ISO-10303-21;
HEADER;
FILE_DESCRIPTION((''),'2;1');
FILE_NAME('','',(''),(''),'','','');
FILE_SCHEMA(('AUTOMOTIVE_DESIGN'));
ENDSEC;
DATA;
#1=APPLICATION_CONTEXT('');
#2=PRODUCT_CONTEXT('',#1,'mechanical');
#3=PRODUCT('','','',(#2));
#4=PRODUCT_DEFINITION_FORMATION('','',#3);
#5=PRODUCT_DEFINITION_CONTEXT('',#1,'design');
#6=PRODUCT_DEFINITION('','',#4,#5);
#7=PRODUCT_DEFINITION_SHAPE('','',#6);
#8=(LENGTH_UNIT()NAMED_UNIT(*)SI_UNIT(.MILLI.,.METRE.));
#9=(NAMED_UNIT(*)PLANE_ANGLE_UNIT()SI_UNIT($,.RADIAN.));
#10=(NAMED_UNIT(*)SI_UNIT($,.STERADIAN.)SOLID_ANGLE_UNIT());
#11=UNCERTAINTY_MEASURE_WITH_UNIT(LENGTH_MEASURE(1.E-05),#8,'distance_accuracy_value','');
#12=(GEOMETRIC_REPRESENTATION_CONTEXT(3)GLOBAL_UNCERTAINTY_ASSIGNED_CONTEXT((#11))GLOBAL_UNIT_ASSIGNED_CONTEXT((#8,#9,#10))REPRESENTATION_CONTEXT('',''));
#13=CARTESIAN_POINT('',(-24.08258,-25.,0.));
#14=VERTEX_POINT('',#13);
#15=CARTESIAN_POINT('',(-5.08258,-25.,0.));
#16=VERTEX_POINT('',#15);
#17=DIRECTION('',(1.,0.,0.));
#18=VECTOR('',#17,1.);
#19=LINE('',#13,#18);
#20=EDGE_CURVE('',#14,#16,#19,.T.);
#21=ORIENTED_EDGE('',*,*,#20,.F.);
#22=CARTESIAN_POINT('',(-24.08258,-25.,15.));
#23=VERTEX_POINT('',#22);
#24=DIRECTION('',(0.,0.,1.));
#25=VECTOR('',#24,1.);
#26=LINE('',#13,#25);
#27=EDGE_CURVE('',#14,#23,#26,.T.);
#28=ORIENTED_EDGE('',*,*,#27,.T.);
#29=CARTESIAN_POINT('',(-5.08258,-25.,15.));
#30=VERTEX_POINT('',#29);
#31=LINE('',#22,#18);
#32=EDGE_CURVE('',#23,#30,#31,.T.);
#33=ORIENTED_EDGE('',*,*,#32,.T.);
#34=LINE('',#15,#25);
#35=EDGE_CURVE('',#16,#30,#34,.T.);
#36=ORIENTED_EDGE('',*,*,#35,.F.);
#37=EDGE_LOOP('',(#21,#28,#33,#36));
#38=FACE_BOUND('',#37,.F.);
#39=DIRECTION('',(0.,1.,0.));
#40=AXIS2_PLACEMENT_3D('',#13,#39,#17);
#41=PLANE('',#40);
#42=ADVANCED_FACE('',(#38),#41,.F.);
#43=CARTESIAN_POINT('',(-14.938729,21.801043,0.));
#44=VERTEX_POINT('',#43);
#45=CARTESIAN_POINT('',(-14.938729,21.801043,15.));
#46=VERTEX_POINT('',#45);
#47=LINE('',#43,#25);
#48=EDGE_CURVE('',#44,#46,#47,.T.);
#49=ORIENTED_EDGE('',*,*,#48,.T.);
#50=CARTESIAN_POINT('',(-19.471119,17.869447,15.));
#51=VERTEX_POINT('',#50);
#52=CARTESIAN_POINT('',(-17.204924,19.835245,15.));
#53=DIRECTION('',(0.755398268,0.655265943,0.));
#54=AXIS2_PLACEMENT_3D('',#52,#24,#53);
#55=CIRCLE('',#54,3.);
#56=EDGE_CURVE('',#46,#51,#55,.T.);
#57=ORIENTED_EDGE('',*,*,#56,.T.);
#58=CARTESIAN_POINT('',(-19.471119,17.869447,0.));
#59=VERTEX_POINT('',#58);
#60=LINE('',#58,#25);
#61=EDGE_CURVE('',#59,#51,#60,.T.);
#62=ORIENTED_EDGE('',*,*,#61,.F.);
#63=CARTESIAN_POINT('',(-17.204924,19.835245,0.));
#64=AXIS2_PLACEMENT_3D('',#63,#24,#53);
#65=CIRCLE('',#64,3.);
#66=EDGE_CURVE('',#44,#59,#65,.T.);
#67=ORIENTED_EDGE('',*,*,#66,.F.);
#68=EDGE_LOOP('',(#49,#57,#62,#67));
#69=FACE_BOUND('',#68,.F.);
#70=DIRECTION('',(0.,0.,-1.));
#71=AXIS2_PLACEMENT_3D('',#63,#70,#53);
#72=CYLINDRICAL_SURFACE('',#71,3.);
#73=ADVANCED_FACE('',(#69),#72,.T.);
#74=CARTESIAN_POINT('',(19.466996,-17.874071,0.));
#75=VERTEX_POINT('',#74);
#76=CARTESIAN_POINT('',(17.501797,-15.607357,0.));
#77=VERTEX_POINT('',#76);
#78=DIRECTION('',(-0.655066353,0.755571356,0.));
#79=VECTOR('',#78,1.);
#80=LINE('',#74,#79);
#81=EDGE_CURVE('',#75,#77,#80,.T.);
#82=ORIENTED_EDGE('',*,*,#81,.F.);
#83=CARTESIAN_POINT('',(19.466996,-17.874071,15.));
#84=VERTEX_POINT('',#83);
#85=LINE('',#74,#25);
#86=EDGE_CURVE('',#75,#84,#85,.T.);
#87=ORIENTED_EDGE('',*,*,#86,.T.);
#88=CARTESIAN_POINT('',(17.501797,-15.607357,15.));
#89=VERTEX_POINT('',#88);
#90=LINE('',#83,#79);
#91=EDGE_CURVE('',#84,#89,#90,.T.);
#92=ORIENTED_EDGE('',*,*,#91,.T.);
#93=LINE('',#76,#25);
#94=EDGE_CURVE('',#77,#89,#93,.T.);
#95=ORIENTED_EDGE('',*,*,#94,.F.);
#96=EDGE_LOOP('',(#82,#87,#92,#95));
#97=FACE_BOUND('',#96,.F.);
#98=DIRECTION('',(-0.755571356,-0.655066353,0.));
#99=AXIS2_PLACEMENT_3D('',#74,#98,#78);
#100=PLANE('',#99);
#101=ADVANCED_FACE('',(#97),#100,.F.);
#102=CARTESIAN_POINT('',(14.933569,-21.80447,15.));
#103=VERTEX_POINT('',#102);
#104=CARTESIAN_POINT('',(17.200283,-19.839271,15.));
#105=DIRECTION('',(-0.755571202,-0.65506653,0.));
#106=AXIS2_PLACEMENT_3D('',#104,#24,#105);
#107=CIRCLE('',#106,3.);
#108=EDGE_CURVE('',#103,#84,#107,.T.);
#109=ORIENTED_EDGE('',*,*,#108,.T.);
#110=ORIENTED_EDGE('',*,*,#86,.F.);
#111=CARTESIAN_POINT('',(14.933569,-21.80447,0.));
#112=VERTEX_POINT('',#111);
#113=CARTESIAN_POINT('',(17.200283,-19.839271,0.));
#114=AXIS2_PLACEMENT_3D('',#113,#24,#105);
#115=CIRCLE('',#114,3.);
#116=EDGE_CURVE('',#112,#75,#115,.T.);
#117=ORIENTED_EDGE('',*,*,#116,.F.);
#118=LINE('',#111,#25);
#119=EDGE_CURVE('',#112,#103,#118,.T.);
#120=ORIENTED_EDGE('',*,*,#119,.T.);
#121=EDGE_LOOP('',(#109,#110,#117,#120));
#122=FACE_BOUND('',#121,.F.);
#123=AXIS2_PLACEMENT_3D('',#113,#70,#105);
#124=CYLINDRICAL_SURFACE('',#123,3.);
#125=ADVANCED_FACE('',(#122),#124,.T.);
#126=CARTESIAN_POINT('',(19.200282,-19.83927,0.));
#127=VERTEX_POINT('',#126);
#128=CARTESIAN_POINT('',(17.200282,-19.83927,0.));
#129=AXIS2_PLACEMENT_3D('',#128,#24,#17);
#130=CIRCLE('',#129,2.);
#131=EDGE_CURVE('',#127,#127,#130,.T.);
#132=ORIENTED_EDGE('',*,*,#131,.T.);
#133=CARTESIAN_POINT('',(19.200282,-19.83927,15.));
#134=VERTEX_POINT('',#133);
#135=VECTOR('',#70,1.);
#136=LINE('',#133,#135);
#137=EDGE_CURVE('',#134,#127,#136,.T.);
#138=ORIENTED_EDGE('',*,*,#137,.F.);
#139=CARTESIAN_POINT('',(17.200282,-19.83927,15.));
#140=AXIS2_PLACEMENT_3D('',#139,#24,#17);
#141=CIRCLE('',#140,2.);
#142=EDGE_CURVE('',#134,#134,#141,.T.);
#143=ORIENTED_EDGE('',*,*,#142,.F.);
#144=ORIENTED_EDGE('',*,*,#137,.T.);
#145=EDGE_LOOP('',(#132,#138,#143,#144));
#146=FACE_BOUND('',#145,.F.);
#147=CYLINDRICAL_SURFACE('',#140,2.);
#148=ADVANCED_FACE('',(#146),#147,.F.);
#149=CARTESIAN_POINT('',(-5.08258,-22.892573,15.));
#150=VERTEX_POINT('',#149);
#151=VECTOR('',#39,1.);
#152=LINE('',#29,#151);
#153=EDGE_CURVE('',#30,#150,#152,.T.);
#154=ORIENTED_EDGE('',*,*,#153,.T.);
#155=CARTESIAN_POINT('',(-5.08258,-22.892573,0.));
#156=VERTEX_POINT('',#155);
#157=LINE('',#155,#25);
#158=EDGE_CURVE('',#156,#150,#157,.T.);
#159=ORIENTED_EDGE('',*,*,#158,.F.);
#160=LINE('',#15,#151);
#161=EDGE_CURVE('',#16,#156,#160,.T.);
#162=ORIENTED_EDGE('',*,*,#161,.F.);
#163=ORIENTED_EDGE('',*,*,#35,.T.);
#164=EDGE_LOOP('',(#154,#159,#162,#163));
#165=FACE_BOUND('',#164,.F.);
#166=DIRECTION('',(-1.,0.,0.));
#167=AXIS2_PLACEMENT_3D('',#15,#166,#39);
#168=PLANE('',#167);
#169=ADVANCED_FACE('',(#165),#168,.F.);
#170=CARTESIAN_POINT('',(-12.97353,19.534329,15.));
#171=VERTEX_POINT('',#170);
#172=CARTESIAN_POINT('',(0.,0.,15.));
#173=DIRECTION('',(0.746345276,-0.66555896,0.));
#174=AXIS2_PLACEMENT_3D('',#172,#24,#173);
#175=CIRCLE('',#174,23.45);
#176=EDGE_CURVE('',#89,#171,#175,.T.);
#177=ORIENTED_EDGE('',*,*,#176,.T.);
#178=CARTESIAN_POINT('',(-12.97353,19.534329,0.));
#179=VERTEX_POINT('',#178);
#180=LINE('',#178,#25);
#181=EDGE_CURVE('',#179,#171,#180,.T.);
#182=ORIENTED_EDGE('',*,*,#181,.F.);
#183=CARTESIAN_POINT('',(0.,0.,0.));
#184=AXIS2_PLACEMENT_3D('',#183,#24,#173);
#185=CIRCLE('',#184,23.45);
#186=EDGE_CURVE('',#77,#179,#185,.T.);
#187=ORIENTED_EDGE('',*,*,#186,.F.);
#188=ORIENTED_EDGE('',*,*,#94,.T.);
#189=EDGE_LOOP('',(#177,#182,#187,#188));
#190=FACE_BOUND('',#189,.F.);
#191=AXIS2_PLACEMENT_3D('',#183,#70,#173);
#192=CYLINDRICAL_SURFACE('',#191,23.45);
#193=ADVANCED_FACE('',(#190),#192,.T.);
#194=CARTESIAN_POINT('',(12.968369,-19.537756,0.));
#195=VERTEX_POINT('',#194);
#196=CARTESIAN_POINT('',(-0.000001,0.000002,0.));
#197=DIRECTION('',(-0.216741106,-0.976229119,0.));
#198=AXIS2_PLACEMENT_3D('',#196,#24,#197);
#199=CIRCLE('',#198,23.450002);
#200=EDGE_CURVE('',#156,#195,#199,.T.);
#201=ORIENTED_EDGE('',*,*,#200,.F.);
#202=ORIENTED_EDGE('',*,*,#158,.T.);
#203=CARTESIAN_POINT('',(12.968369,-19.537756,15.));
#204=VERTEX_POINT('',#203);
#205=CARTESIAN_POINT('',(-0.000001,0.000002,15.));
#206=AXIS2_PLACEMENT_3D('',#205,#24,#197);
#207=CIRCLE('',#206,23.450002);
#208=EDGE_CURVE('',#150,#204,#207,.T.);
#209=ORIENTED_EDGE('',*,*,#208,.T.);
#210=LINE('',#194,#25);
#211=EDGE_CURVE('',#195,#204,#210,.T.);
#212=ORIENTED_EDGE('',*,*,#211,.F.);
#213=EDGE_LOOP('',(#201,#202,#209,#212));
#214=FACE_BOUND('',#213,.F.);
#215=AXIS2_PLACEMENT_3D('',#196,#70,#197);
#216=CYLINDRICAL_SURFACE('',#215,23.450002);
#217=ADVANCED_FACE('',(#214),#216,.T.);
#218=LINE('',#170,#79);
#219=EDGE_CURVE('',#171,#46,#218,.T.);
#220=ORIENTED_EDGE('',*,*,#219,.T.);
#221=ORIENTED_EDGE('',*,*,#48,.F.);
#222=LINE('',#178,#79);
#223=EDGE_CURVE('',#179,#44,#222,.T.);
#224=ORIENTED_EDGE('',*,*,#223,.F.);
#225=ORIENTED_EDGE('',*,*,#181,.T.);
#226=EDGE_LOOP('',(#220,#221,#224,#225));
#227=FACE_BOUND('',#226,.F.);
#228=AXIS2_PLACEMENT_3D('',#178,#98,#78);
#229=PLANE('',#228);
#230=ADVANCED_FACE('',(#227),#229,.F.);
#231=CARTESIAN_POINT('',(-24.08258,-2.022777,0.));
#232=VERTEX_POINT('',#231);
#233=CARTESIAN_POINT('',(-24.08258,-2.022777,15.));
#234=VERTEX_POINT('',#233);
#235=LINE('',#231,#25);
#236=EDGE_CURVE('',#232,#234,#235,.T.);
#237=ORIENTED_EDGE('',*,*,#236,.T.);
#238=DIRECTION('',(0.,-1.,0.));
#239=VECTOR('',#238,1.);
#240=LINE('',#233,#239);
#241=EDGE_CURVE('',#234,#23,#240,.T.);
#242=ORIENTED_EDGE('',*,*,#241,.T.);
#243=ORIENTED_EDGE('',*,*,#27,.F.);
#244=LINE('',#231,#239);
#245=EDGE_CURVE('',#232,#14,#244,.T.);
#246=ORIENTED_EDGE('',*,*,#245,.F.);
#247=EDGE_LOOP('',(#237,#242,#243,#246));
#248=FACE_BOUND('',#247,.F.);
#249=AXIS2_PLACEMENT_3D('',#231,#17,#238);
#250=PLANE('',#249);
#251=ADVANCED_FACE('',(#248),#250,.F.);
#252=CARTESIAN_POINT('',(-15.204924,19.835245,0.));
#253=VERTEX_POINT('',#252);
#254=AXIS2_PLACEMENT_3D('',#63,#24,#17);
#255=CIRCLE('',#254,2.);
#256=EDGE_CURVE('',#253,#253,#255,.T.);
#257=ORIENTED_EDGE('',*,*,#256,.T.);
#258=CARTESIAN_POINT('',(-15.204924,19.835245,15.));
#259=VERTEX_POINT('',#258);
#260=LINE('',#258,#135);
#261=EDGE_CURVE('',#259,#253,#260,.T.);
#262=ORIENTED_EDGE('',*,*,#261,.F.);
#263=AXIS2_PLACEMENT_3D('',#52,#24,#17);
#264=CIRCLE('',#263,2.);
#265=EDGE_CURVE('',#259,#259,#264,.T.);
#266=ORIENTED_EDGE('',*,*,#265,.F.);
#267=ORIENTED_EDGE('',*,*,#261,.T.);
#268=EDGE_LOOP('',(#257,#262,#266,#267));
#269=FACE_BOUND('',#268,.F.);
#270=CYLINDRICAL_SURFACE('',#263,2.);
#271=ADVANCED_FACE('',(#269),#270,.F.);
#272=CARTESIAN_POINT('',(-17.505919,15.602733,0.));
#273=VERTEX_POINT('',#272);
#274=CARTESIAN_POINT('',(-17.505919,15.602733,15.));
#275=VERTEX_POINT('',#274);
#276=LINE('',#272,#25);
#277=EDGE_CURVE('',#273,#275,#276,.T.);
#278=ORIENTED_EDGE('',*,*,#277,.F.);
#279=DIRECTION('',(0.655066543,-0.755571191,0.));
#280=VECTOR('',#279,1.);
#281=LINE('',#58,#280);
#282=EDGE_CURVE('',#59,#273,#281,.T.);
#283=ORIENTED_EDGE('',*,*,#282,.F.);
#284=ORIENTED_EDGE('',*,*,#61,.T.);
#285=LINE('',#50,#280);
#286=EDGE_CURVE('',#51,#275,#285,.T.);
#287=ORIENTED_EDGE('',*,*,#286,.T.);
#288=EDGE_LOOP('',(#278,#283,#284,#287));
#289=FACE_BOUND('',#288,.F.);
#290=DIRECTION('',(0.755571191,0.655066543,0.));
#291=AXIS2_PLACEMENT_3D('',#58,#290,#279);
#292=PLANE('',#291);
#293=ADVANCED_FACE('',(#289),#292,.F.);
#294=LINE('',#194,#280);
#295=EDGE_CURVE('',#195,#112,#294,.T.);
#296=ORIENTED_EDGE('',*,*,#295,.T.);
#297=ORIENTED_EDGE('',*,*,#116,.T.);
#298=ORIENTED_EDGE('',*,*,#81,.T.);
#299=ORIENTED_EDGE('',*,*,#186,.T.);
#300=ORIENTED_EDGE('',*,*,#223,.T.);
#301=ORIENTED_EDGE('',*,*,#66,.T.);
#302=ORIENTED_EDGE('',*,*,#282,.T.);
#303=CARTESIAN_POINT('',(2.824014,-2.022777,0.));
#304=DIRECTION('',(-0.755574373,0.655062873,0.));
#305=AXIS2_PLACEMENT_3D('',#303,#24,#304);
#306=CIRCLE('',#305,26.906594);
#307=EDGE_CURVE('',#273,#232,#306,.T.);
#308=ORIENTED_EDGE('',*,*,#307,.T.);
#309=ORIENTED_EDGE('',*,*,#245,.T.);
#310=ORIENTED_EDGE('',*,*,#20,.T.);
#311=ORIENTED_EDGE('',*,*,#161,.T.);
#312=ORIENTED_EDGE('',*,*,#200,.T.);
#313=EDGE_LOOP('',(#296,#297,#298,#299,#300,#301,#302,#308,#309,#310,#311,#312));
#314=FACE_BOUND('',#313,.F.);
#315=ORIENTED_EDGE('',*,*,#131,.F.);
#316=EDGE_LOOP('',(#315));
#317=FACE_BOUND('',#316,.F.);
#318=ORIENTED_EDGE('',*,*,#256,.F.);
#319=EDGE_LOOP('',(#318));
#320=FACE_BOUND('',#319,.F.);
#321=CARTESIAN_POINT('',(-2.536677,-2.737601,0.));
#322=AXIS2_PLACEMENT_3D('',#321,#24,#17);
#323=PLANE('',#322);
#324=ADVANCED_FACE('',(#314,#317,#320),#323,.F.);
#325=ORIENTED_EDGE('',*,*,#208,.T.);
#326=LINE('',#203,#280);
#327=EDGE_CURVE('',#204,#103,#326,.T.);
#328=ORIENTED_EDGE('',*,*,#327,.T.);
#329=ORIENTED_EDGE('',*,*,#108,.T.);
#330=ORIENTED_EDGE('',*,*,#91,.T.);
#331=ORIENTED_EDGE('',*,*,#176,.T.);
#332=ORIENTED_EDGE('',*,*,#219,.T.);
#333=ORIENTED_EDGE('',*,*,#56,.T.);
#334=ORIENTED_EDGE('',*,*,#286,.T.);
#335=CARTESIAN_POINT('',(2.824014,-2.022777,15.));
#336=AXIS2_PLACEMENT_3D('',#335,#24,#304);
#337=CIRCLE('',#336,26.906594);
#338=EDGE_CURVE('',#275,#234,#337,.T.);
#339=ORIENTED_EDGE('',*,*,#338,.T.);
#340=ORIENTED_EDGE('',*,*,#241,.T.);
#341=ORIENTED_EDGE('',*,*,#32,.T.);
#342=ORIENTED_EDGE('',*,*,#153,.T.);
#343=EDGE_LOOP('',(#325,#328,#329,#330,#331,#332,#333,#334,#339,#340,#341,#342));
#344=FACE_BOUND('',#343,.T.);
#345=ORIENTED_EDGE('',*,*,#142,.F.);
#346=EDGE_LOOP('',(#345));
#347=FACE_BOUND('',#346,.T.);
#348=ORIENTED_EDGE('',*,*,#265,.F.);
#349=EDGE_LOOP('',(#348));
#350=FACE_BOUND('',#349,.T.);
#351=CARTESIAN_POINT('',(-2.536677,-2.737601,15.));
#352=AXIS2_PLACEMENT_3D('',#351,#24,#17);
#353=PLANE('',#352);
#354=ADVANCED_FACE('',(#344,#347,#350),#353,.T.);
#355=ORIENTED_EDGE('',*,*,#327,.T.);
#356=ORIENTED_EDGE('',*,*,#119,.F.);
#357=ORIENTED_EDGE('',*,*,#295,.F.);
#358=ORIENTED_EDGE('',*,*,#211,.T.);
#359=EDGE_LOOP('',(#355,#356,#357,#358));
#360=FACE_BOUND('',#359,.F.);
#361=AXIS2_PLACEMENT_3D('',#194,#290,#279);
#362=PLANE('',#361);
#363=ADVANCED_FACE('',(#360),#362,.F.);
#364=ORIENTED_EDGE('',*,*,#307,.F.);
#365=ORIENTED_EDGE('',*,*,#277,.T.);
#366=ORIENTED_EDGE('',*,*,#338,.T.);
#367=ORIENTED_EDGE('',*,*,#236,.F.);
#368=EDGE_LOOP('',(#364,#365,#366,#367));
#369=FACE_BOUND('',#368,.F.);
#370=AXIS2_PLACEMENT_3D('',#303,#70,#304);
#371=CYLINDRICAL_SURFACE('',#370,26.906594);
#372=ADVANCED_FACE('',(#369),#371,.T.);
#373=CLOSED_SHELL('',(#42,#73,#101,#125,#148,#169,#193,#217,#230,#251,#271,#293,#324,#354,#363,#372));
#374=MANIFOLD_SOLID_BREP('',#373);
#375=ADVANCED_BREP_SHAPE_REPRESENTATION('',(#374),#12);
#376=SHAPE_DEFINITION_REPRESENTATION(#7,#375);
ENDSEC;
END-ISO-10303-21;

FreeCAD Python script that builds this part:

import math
import FreeCAD as App
import Part
import Sketcher
from FreeCAD import Vector

doc = App.newDocument("Part")
body = doc.addObject("PartDesign::Body", "Body")

# Sketch on XY plane
sketch1 = body.newObject("Sketcher::SketchObject", "Sketch")
sketch1.AttachmentSupport = (doc.getObject("XY_Plane"), [""])
sketch1.MapMode = "FlatFace"
sketch1.addGeometry([
    Part.ArcOfCircle(Part.Circle(Vector(2.824014, -2.022777, 0), Vector(0, 0, 1), 26.906594), math.radians(139.075583), math.radians(179.999999)),  # 0
    Part.LineSegment(Vector(-24.08258, -2.022777, 0), Vector(-24.08258, -25, 0)),  # 1
    Part.LineSegment(Vector(-24.08258, -25, 0), Vector(-5.08258, -25, 0)),  # 2
    Part.LineSegment(Vector(-5.08258, -25, 0), Vector(-5.08258, -22.892573, 0)),  # 3
    Part.ArcOfCircle(Part.Circle(Vector(-0.000001, 0.000002, 0), Vector(0, 0, 1), 23.450002), math.radians(-102.517694), math.radians(-56.425409)),  # 4
    Part.LineSegment(Vector(12.968369, -19.537756, 0), Vector(14.933569, -21.80447, 0)),  # 5
    Part.ArcOfCircle(Part.Circle(Vector(17.200283, -19.839271, 0), Vector(0, 0, 1), 3), math.radians(-139.075305), math.radians(40.924695)),  # 6
    Part.LineSegment(Vector(19.466996, -17.874071, 0), Vector(17.501797, -15.607357, 0)),  # 7
    Part.ArcOfCircle(Part.Circle(Vector(0, 0, 0), Vector(0, 0, 1), 23.45), math.radians(-41.725222), math.radians(123.58973)),  # 8
    Part.LineSegment(Vector(-12.97353, 19.534329, 0), Vector(-14.938729, 21.801043, 0)),  # 9
    Part.ArcOfCircle(Part.Circle(Vector(-17.204924, 19.835245, 0), Vector(0, 0, 1), 3), math.radians(40.939818), math.radians(220.939818)),  # 10
    Part.LineSegment(Vector(-19.471119, 17.869447, 0), Vector(-17.505919, 15.602733, 0)),  # 11
], False)
sketch1.addConstraint([
    Sketcher.Constraint("Tangent", 0, 2, 1, 1),
    Sketcher.Constraint("Coincident", 1, 2, 2, 1),
    Sketcher.Constraint("Coincident", 2, 2, 3, 1),
    Sketcher.Constraint("Coincident", 3, 2, 4, 1),
    Sketcher.Constraint("Coincident", 4, 2, 5, 1),
    Sketcher.Constraint("Tangent", 5, 2, 6, 1),
    Sketcher.Constraint("Tangent", 6, 2, 7, 1),
    Sketcher.Constraint("Coincident", 7, 2, 8, 1),
    Sketcher.Constraint("Coincident", 8, 2, 9, 1),
    Sketcher.Constraint("Coincident", 9, 2, 10, 1),
    Sketcher.Constraint("Coincident", 10, 2, 11, 1),
    Sketcher.Constraint("Coincident", 11, 2, 0, 1),
    Sketcher.Constraint("Vertical", 1),
    Sketcher.Constraint("Horizontal", 2),
    Sketcher.Constraint("Vertical", 3),
    Sketcher.Constraint("Coincident", 4, 3, -1, 1),
    Sketcher.Constraint("Coincident", 8, 3, -1, 1),
    Sketcher.Constraint("Equal", 6, 10),
    Sketcher.Constraint("Parallel", 5, 7),
    Sketcher.Constraint("Parallel", 7, 9),
    Sketcher.Constraint("Parallel", 9, 11),
    Sketcher.Constraint("Equal", 5, 7),
    Sketcher.Constraint("Equal", 7, 9),
    Sketcher.Constraint("Equal", 9, 11),
    Sketcher.Constraint("Radius", 6, 3.0),
    Sketcher.Constraint("DistanceX", 2, 1, 2, 2, 19.0),
    Sketcher.Constraint("Radius", 4, 23.450002),
    Sketcher.Constraint("Radius", 8, 23.45),
    Sketcher.Constraint("Distance", 5, 3.000001),
    Sketcher.Constraint("DistanceY", 1, 2, -1, 1, 25.0),
    Sketcher.Constraint("Radius", 0, 26.906594),
    Sketcher.Constraint("DistanceY", 5, 2, 6, 3, 1.965199),
    Sketcher.Constraint("DistanceY", 1, 2, 1, 1, 22.977223),
    Sketcher.Constraint("DistanceY", 3, 1, 3, 2, 2.107427),
    Sketcher.Constraint("DistanceX", 8, 2, -1, 1, 12.97353),
    Sketcher.Constraint("DistanceY", 11, 2, 10, 3, 4.232512),
])
pad1 = body.newObject("PartDesign::Pad", "Pad")
pad1.Profile = sketch1
pad1.Length = 15

# Sketch on XY plane
sketch2 = body.newObject("Sketcher::SketchObject", "Sketch001")
sketch2.AttachmentSupport = (doc.getObject("XY_Plane"), [""])
sketch2.MapMode = "FlatFace"
sketch2.AttachmentOffset = App.Placement(Vector(0, 0, 15), App.Rotation())
sketch2.addGeometry([
    Part.Circle(Vector(17.200282, -19.83927, 0), Vector(0, 0, 1), 2),
    Part.Circle(Vector(-17.204924, 19.835245, 0), Vector(0, 0, 1), 2),
], False)
sketch2.addConstraint([
    Sketcher.Constraint("Equal", 0, 1),
    Sketcher.Constraint("Diameter", 0, 4.0),
    Sketcher.Constraint("DistanceY", 0, 3, -1, 1, 19.83927),
    Sketcher.Constraint("DistanceX", -1, 1, 0, 3, 17.200282),
    Sketcher.Constraint("DistanceX", 1, 3, -1, 1, 17.204924),
    Sketcher.Constraint("DistanceY", -1, 1, 1, 3, 19.835245),
])
pocket1 = body.newObject("PartDesign::Pocket", "Pocket")
pocket1.Profile = sketch2
pocket1.Type = "ThroughAll"

doc.recompute()
